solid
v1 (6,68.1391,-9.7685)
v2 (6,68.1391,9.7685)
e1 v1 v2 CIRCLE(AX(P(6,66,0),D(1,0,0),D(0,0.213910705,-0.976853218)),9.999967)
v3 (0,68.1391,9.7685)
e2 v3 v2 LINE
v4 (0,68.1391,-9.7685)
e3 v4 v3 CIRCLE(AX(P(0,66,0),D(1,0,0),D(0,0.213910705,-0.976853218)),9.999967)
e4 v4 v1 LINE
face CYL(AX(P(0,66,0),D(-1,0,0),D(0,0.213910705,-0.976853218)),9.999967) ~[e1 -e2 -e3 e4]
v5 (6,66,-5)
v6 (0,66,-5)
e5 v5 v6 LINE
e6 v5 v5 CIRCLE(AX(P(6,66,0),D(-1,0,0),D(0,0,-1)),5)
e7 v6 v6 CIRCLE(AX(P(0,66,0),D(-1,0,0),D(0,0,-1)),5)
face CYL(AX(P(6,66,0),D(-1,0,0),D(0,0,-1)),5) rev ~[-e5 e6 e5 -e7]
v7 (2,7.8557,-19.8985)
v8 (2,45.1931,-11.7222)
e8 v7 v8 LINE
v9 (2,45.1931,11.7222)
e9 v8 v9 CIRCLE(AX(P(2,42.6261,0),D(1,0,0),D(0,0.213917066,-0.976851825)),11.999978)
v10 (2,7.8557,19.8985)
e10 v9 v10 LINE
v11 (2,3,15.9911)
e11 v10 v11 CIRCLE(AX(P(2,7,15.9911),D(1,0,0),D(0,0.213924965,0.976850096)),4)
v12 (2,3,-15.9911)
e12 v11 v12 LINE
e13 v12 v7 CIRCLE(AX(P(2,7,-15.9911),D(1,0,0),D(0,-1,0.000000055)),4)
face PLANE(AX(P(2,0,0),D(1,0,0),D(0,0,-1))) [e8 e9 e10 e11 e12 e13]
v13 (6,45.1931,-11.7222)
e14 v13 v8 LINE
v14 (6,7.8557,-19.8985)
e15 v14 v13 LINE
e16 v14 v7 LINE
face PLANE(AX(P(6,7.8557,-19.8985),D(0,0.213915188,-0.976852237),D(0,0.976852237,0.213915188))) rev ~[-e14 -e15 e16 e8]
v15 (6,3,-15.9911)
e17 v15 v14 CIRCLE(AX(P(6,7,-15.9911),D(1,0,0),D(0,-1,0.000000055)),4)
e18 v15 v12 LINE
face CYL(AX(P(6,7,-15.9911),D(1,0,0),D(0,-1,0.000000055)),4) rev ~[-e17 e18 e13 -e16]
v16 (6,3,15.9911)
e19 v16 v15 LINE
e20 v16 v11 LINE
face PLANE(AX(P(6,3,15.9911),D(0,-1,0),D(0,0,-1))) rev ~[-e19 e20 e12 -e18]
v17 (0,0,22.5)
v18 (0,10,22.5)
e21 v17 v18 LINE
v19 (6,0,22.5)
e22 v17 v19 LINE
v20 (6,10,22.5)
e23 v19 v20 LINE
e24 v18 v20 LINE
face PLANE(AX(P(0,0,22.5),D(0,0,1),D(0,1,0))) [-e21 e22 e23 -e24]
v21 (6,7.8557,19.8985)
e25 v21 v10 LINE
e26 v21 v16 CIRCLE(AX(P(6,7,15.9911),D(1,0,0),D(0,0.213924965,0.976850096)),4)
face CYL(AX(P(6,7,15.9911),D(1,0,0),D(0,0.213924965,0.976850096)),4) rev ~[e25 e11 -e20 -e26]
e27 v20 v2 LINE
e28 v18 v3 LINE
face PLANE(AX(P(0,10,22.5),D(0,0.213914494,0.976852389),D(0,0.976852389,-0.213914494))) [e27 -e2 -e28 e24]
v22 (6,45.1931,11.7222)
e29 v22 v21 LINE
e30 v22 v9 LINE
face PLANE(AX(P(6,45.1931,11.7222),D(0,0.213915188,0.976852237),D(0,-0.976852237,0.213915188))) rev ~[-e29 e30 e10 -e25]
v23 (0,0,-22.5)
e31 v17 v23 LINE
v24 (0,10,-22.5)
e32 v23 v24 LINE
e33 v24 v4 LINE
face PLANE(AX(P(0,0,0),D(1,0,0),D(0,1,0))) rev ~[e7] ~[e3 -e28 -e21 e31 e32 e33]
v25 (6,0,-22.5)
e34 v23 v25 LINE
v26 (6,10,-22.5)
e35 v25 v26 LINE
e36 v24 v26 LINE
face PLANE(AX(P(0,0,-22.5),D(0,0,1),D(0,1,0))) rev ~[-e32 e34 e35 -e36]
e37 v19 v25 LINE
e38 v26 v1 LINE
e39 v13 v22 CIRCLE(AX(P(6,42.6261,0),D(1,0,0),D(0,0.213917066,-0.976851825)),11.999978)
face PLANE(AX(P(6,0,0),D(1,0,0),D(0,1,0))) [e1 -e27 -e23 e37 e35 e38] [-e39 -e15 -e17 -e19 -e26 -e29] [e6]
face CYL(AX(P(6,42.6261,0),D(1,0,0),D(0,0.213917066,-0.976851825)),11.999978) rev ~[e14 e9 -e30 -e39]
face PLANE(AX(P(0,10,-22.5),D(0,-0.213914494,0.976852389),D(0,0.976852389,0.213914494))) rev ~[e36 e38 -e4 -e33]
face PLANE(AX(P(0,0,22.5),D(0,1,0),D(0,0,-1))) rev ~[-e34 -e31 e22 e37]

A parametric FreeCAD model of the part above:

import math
import FreeCAD as App
import Part
import Sketcher

doc = App.newDocument("Part")
body = doc.addObject("PartDesign::Body", "Body")

# Sketch on YZ plane
sketch1 = doc.addObject("Sketcher::SketchObject", "Sketch")
body.addObject(sketch1)
sketch1.AttachmentSupport = (doc.YZ_Plane, [""])
sketch1.MapMode = "FlatFace"
sketch1.addGeometry([
    Part.LineSegment(App.Vector(10, 22.5, 0), App.Vector(0, 22.5, 0)),  # 0
    Part.LineSegment(App.Vector(0, 22.5, 0), App.Vector(0, -22.5, 0)),  # 1
    Part.LineSegment(App.Vector(0, -22.5, 0), App.Vector(10, -22.5, 0)),  # 2
    Part.LineSegment(App.Vector(10, -22.5, 0), App.Vector(68.1391, -9.7685, 0)),  # 3
    Part.ArcOfCircle(Part.Circle(App.Vector(66, 0, 0), App.Vector(0, 0, 1), 9.999967), math.radians(-77.648371), math.radians(77.648371)),  # 4
    Part.LineSegment(App.Vector(68.1391, 9.7685, 0), App.Vector(10, 22.5, 0)),  # 5
], False)
sketch1.addConstraint([
    Sketcher.Constraint("Coincident", 0, 2, 1, 1),
    Sketcher.Constraint("Coincident", 1, 2, 2, 1),
    Sketcher.Constraint("Coincident", 2, 2, 3, 1),
    Sketcher.Constraint("Tangent", 3, 2, 4, 1),
    Sketcher.Constraint("Tangent", 4, 2, 5, 1),
    Sketcher.Constraint("Coincident", 5, 2, 0, 1),
    Sketcher.Constraint("Horizontal", 0),
    Sketcher.Constraint("Vertical", 1),
    Sketcher.Constraint("Horizontal", 2),
    Sketcher.Constraint("Symmetric", 0, 2, 1, 2, -1, 1),
    Sketcher.Constraint("Symmetric", 3, 2, 4, 2, -1),
    Sketcher.Constraint("Radius", 4, 10.0),
    Sketcher.Constraint("DistanceX", 0, 2, 0, 1, 10.0),
    Sketcher.Constraint("DistanceY", 1, 2, 1, 1, 45.0),
    Sketcher.Constraint("DistanceX", -1, 1, 4, 3, 66.0),
])
pad1 = doc.addObject("PartDesign::Pad", "Pad")
body.addObject(pad1)
pad1.Profile = sketch1
pad1.Length = 6

# Sketch on YZ plane
sketch2 = doc.addObject("Sketcher::SketchObject", "Sketch001")
body.addObject(sketch2)
sketch2.AttachmentSupport = (doc.YZ_Plane, [""])
sketch2.MapMode = "FlatFace"
sketch2.AttachmentOffset = App.Placement(App.Vector(0, 0, 6), App.Rotation())
sketch2.addGeometry([
    Part.ArcOfCircle(Part.Circle(App.Vector(42.6261, 0, 0), App.Vector(0, 0, 1), 11.999978), math.radians(-77.647998), math.radians(77.647998)),  # 0
    Part.LineSegment(App.Vector(45.1931, 11.7222, 0), App.Vector(7.8557, 19.8985, 0)),  # 1
    Part.ArcOfCircle(Part.Circle(App.Vector(7, 15.9911, 0), App.Vector(0, 0, 1), 4), math.radians(77.647532), math.radians(180)),  # 2
    Part.LineSegment(App.Vector(3, 15.9911, 0), App.Vector(3, -15.9911, 0)),  # 3
    Part.ArcOfCircle(Part.Circle(App.Vector(7, -15.9911, 0), App.Vector(0, 0, 1), 4), math.radians(180), math.radians(282.352468)),  # 4
    Part.LineSegment(App.Vector(7.8557, -19.8985, 0), App.Vector(45.1931, -11.7222, 0)),  # 5
], False)
sketch2.addConstraint([
    Sketcher.Constraint("Tangent", 0, 2, 1, 1),
    Sketcher.Constraint("Tangent", 1, 2, 2, 1),
    Sketcher.Constraint("Tangent", 2, 2, 3, 1),
    Sketcher.Constraint("Tangent", 3, 2, 4, 1),
    Sketcher.Constraint("Tangent", 4, 2, 5, 1),
    Sketcher.Constraint("Tangent", 5, 2, 0, 1),
    Sketcher.Constraint("Vertical", 3),
    Sketcher.Constraint("Equal", 2, 4),
    Sketcher.Constraint("Symmetric", 1, 2, 4, 2, -1),
    Sketcher.Constraint("Radius", 0, 12.0),
    Sketcher.Constraint("Radius", 2, 4.0),
    Sketcher.Constraint("DistanceX", -1, 1, 2, 2, 3.0),
    Sketcher.Constraint("DistanceY", 3, 2, 3, 1, 31.9822),
    Sketcher.Constraint("DistanceX", -1, 1, 0, 3, 42.626),
])
pocket1 = doc.addObject("PartDesign::Pocket", "Pocket")
body.addObject(pocket1)
pocket1.Profile = sketch2
pocket1.Length = 4

# Sketch on YZ plane
sketch3 = doc.addObject("Sketcher::SketchObject", "Sketch002")
body.addObject(sketch3)
sketch3.AttachmentSupport = (doc.YZ_Plane, [""])
sketch3.MapMode = "FlatFace"
sketch3.AttachmentOffset = App.Placement(App.Vector(0, 0, 6), App.Rotation())
sketch3.addGeometry(Part.Circle(App.Vector(66, 0, 0), App.Vector(0, 0, 1), 5), False)
sketch3.addConstraint([
    Sketcher.Constraint("PointOnObject", 0, 3, -1),
    Sketcher.Constraint("Diameter", 0, 10.0),
    Sketcher.Constraint("DistanceX", -1, 1, 0, 3, 66.0),
])
doc.recompute()
hole = doc.addObject("PartDesign::Hole", "Hole")
body.addObject(hole)
hole.Profile = sketch3
hole.ThreadType = "None"
hole.Diameter = 10
hole.DepthType = "ThroughAll"

doc.recompute()
